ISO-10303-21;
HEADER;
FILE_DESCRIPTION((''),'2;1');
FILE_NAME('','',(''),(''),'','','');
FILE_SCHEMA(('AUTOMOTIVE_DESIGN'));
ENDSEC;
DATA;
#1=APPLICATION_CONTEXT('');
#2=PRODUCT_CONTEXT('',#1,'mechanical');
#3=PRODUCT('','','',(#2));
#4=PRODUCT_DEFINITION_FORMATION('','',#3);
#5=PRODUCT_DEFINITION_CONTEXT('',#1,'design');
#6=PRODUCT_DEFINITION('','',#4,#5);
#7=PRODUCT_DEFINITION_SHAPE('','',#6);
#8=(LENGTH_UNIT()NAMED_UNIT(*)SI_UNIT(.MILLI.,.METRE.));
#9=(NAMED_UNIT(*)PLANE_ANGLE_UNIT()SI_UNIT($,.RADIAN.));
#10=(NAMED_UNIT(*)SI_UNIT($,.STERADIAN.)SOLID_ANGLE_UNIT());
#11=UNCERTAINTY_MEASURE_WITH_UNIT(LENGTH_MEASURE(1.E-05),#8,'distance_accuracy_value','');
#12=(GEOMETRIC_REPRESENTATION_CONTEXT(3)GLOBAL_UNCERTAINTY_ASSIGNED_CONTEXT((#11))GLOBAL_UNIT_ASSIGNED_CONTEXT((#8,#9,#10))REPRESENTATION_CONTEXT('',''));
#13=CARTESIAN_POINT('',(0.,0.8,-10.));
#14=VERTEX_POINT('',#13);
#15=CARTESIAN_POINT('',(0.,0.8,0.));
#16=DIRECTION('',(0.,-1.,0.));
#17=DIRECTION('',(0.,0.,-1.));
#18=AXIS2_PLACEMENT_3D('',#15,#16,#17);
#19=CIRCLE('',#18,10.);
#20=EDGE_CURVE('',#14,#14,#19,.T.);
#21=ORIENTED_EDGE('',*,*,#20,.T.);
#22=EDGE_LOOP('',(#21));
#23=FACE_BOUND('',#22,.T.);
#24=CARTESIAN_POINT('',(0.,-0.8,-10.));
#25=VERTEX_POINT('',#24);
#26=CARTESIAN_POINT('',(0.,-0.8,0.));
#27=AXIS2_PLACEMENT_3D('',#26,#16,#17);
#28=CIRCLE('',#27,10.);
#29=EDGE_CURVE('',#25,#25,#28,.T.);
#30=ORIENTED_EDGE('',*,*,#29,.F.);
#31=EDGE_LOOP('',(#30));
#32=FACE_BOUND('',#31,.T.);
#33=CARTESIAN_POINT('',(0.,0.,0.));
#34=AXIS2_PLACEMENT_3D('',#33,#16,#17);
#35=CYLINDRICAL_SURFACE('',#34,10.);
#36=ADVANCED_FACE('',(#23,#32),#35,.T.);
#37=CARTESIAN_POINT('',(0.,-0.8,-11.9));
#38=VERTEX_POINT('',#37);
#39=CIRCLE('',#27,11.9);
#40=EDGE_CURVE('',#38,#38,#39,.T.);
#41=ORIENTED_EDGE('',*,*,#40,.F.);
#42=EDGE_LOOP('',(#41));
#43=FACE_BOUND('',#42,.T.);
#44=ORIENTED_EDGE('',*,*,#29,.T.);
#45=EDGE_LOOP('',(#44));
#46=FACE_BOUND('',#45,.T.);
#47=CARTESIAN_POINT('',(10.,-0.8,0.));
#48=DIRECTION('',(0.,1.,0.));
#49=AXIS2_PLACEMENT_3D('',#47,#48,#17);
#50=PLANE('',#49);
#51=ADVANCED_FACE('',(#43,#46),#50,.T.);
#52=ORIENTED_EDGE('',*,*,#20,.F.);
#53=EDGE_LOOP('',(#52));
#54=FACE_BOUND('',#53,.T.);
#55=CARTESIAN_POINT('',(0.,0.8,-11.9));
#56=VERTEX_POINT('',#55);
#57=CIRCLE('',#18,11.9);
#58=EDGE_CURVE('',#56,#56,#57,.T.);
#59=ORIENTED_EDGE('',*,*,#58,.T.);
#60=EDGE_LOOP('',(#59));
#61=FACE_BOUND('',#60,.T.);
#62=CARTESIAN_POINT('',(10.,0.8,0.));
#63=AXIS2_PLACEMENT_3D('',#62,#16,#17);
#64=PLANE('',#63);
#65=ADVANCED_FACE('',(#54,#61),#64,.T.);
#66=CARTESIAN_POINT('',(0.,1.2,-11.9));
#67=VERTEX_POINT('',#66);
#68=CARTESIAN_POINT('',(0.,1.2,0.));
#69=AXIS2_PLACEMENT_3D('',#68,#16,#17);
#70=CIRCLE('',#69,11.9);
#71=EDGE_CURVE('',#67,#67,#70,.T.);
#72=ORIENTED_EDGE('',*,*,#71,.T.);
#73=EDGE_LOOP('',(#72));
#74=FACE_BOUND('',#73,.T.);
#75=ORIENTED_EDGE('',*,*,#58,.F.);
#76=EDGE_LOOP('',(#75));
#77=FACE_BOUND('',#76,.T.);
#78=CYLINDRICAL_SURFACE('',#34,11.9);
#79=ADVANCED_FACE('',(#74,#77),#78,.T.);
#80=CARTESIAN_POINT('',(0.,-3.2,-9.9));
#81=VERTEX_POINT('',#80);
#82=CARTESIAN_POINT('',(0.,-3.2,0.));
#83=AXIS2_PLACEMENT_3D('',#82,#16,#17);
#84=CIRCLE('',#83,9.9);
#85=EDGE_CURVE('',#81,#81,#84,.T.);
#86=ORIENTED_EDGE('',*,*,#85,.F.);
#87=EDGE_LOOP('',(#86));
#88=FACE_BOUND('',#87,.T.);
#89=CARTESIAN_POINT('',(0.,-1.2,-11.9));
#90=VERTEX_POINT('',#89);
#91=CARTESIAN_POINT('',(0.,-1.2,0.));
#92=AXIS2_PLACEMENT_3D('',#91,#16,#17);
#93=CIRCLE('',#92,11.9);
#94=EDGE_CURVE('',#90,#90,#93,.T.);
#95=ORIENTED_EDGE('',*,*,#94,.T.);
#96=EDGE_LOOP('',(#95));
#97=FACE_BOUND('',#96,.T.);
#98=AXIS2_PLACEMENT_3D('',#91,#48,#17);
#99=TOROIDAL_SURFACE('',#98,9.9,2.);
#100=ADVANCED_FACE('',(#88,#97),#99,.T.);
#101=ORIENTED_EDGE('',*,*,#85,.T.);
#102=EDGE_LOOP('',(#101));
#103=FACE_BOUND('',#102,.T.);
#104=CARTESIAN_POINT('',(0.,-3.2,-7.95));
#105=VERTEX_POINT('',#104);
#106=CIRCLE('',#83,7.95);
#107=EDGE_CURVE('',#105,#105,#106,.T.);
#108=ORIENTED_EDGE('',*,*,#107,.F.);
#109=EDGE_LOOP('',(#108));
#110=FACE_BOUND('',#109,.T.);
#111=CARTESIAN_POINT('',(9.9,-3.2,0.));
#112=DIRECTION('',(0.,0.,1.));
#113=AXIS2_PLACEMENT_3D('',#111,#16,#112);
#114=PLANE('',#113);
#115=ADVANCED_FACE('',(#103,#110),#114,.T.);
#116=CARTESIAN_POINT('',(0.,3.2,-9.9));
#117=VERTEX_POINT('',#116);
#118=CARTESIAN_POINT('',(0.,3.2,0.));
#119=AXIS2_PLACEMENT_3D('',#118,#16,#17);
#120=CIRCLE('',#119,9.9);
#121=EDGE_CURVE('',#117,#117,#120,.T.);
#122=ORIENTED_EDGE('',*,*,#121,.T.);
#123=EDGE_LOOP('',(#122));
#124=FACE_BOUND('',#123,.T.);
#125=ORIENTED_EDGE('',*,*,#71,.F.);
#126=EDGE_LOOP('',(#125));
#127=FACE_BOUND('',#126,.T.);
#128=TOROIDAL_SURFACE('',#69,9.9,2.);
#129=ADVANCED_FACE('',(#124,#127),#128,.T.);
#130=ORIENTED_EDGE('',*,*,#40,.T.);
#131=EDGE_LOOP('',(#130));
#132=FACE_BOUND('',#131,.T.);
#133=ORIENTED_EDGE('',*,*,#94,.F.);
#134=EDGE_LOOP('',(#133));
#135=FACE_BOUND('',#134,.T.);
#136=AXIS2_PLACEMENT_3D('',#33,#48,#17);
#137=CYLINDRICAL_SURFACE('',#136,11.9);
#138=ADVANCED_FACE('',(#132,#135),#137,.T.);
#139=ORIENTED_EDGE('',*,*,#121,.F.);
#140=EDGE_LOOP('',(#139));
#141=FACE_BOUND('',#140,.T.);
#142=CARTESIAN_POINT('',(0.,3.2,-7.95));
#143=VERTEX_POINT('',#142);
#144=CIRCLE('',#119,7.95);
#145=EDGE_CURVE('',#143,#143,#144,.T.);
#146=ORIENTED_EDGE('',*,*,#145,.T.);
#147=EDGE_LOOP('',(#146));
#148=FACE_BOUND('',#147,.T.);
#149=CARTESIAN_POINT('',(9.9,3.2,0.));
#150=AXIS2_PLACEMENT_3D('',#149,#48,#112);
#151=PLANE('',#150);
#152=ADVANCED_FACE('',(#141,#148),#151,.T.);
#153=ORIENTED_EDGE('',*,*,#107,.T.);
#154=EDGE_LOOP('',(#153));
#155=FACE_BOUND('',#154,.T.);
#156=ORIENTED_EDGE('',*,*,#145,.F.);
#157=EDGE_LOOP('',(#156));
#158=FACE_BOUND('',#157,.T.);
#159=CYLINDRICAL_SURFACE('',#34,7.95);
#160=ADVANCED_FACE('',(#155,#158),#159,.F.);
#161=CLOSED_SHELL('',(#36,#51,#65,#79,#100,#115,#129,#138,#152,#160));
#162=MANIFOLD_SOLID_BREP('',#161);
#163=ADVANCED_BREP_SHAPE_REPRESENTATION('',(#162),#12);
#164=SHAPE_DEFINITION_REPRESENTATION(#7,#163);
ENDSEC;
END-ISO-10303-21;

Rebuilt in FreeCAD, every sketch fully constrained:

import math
import FreeCAD as App
import Part
import Sketcher
from FreeCAD import Vector
Q = App.Units.Quantity

doc = App.newDocument("Part")
params = doc.addObject("Spreadsheet::Sheet", "Params")
for row, (alias, value) in enumerate([
    ("sketch1_radius", "2 mm"),
    ("sketch1_width", "1.9 mm"),
    ("sketch1_height", "3.2 mm"),
    ("sketch1_height2", "0.8 mm"),
    ("sketch1_width2", "2.05 mm"),
    ("revolution_angle", "360 deg"),
], start=1):
    params.set(f"A{row}", alias)
    params.set(f"B{row}", "=" + value)
    params.setAlias(f"B{row}", alias)

body = doc.addObject("PartDesign::Body", "Body")

# Sketch on XY plane
sketch1 = body.newObject("Sketcher::SketchObject", "Sketch")
sketch1.AttachmentSupport = (doc.getObject("XY_Plane"), [""])
sketch1.MapMode = "FlatFace"
sketch1.addGeometry([
    Part.LineSegment(Vector(7.95, 3.2, 0), Vector(7.95, 0, 0)),  # 0
    Part.LineSegment(Vector(7.95, 0, 0), Vector(10, 0, 0)),  # 1
    Part.LineSegment(Vector(10, 0, 0), Vector(10, 0.8, 0)),  # 2
    Part.LineSegment(Vector(10, 0.8, 0), Vector(11.9, 0.8, 0)),  # 3
    Part.LineSegment(Vector(11.9, 0.8, 0), Vector(11.9, 1.2, 0)),  # 4
    Part.ArcOfCircle(Part.Circle(Vector(9.9, 1.2, 0), Vector(0, 0, 1), 2), math.radians(0), math.radians(90)),  # 5
    Part.LineSegment(Vector(9.9, 3.2, 0), Vector(7.95, 3.2, 0)),  # 6
], False)
sketch1.addConstraint([
    Sketcher.Constraint("Coincident", 0, 2, 1, 1),
    Sketcher.Constraint("Coincident", 1, 2, 2, 1),
    Sketcher.Constraint("Coincident", 2, 2, 3, 1),
    Sketcher.Constraint("Coincident", 3, 2, 4, 1),
    Sketcher.Constraint("Tangent", 4, 2, 5, 1),
    Sketcher.Constraint("Tangent", 5, 2, 6, 1),
    Sketcher.Constraint("Coincident", 6, 2, 0, 1),
    Sketcher.Constraint("Vertical", 0),
    Sketcher.Constraint("Horizontal", 1),
    Sketcher.Constraint("Vertical", 2),
    Sketcher.Constraint("Horizontal", 3),
    Sketcher.Constraint("Vertical", 4),
    Sketcher.Constraint("Horizontal", 6),
    Sketcher.Constraint("PointOnObject", 0, 2, -1),
    Sketcher.Constraint("Radius", 5, Q("2 mm")),
    Sketcher.Constraint("DistanceX", 3, 1, 3, 2, Q("1.9 mm")),
    Sketcher.Constraint("DistanceY", 0, 2, 0, 1, Q("3.2 mm")),
    Sketcher.Constraint("DistanceY", 2, 1, 2, 2, Q("0.8 mm")),
    Sketcher.Constraint("DistanceX", -1, 1, 1, 2, Q("10 mm")),
    Sketcher.Constraint("DistanceX", 1, 1, 1, 2, Q("2.05 mm")),
])
sketch1.setExpression("Constraints[14]", "Params.sketch1_radius")
sketch1.setExpression("Constraints[15]", "Params.sketch1_width")
sketch1.setExpression("Constraints[16]", "Params.sketch1_height")
sketch1.setExpression("Constraints[17]", "Params.sketch1_height2")
sketch1.setExpression("Constraints[19]", "Params.sketch1_width2")
revolution = body.newObject("PartDesign::Revolution", "Revolution")
revolution.Profile = sketch1
revolution.ReferenceAxis = (sketch1, ["V_Axis"])
revolution.setExpression("Angle", "Params.revolution_angle")
doc.recompute()

mirrored = body.newObject("PartDesign::Mirrored", "Mirrored")
mirrored.Originals = [revolution]
mirrored.MirrorPlane = (doc.getObject("XZ_Plane"), [""])
body.Tip = mirrored

doc.recompute()
